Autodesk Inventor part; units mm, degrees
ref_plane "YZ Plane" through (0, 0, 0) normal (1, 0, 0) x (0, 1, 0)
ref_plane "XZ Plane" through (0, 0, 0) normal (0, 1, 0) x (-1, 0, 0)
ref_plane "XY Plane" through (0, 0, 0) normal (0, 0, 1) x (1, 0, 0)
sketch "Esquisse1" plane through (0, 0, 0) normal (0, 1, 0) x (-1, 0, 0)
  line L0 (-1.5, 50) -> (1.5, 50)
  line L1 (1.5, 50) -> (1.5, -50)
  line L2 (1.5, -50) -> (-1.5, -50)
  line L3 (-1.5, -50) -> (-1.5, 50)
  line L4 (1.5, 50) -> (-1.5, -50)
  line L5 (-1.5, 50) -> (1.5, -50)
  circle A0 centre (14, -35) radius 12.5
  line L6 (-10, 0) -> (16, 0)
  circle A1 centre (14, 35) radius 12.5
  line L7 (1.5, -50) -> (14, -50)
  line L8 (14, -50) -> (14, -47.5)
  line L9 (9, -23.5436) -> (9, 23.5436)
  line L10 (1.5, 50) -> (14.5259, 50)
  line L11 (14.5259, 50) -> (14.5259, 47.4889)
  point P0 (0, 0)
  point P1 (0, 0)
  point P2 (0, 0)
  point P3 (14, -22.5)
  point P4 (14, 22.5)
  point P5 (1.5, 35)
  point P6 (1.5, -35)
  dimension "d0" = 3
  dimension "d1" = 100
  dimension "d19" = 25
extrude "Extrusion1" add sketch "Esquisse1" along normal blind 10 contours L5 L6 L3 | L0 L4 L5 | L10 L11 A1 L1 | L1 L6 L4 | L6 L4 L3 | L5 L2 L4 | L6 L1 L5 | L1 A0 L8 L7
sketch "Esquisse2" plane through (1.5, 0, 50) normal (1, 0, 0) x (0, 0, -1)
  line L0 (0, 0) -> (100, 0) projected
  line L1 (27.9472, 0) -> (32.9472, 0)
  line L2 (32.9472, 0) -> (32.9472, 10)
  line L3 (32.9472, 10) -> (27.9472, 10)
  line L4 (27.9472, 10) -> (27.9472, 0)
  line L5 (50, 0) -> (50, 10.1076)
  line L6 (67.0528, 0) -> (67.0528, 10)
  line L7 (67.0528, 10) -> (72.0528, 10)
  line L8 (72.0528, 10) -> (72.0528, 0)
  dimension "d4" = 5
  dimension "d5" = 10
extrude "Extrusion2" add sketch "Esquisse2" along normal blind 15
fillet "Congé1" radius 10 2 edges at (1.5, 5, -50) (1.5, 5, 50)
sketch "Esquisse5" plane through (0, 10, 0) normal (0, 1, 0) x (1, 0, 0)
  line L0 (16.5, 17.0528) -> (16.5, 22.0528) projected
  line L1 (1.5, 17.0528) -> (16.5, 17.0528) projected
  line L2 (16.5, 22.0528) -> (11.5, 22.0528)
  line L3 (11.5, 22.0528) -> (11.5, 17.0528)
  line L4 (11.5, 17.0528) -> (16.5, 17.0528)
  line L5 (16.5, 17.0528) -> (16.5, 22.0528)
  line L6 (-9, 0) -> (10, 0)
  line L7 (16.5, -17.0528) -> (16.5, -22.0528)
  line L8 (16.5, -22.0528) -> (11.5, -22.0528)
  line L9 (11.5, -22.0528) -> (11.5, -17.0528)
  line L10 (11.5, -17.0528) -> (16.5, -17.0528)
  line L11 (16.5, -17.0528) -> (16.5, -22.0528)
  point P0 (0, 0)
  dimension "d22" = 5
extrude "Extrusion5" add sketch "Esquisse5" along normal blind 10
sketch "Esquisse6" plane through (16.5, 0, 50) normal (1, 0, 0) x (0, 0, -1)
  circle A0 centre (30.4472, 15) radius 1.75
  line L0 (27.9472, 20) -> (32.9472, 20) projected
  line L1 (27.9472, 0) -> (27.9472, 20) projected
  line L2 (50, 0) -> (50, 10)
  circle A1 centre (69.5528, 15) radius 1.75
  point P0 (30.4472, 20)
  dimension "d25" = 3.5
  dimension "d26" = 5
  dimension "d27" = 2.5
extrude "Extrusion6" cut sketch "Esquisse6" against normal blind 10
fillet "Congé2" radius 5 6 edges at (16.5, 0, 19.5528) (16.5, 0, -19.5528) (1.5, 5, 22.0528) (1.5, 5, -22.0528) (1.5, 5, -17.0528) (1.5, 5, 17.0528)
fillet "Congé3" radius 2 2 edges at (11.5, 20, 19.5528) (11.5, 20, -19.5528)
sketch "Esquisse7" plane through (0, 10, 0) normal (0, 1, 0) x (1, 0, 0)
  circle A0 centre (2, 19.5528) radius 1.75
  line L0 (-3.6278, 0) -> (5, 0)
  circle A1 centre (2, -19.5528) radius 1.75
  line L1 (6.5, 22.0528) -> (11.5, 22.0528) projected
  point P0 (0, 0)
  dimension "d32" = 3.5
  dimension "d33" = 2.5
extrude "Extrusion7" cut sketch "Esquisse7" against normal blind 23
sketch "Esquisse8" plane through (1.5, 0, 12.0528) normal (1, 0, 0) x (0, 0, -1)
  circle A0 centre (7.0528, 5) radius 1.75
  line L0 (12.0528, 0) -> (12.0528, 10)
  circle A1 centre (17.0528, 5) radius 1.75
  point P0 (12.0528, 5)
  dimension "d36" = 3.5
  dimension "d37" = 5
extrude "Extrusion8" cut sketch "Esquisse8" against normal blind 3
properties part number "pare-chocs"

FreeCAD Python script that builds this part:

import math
import FreeCAD as App
import Part
import Sketcher

V = App.Vector


def edges_at(feature, points):
    """Names of the edges that pass closest to the given points."""
    edges = feature.Shape.Edges
    near = lambda p: min(range(len(edges)), key=lambda i: edges[i].distToShape(Part.Vertex(*p))[0])
    return sorted({f"Edge{near(p) + 1}" for p in points})

doc = App.newDocument("Part")
body = doc.addObject("PartDesign::Body", "Body")

# Sketch on XZ plane
sketch1 = body.newObject("Sketcher::SketchObject", "Sketch")
sketch1.AttachmentSupport = (doc.getObject("XZ_Plane"), [""])
sketch1.MapMode = "FlatFace"
sketch1.addGeometry(Part.LineSegment(V(1.5, 50, 0), V(1.5, -50, 0)), False)
sketch1.addGeometry(Part.LineSegment(V(1.5, -50, 0), V(-14, -50, 0)), False)
sketch1.addGeometry(Part.LineSegment(V(-14, -50, 0), V(-14, -47.5, 0)), False)
sketch1.addGeometry(Part.ArcOfCircle(Part.Circle(V(-14, -35, 0), V(0, 0, 1), 12.5), math.radians(-90), math.radians(0)), False)
sketch1.addGeometry(Part.LineSegment(V(-1.5, -35, 0), V(-1.5, 35, 0)), False)
sketch1.addGeometry(Part.ArcOfCircle(Part.Circle(V(-14, 35, 0), V(0, 0, 1), 12.5), math.radians(0), math.radians(92.411266)), False)
sketch1.addGeometry(Part.LineSegment(V(-14.5259, 47.4889, 0), V(-14.5259, 50, 0)), False)
sketch1.addGeometry(Part.LineSegment(V(-14.5259, 50, 0), V(1.5, 50, 0)), False)
sketch1.addConstraint(Sketcher.Constraint("Coincident", 0, 2, 1, 1))
sketch1.addConstraint(Sketcher.Constraint("Coincident", 1, 2, 2, 1))
sketch1.addConstraint(Sketcher.Constraint("Coincident", 2, 2, 3, 1))
sketch1.addConstraint(Sketcher.Constraint("Tangent", 3, 2, 4, 1))
sketch1.addConstraint(Sketcher.Constraint("Tangent", 4, 2, 5, 1))
sketch1.addConstraint(Sketcher.Constraint("Coincident", 5, 2, 6, 1))
sketch1.addConstraint(Sketcher.Constraint("Coincident", 6, 2, 7, 1))
sketch1.addConstraint(Sketcher.Constraint("Coincident", 7, 2, 0, 1))
sketch1.addConstraint(Sketcher.Constraint("Vertical", 0))
sketch1.addConstraint(Sketcher.Constraint("Horizontal", 1))
sketch1.addConstraint(Sketcher.Constraint("Vertical", 2))
sketch1.addConstraint(Sketcher.Constraint("Vertical", 4))
sketch1.addConstraint(Sketcher.Constraint("Vertical", 6))
sketch1.addConstraint(Sketcher.Constraint("Horizontal", 7))
sketch1.addConstraint(Sketcher.Constraint("Equal", 3, 5))
sketch1.addConstraint(Sketcher.Constraint("Vertical", 5, 3, 1, 2))
sketch1.addConstraint(Sketcher.Constraint("Radius", 3, 12.5))
sketch1.addConstraint(Sketcher.Constraint("DistanceY", 0, 2, 0, 1, 100.0))
sketch1.addConstraint(Sketcher.Constraint("DistanceX", 3, 2, 0, 2, 3.0))
sketch1.addConstraint(Sketcher.Constraint("DistanceY", 4, 1, 4, 2, 70.0))
sketch1.addConstraint(Sketcher.Constraint("DistanceY", 2, 1, 2, 2, 2.5))
sketch1.addConstraint(Sketcher.Constraint("DistanceX", 3, 3, -1, 1, 14.0))
sketch1.addConstraint(Sketcher.Constraint("DistanceY", 3, 3, -1, 1, 35.0))
sketch1.addConstraint(Sketcher.Constraint("DistanceX", 7, 1, 7, 2, 16.026))
pad1 = body.newObject("PartDesign::Pad", "Pad")
pad1.Profile = sketch1
pad1.Length = 10
pad1.Reversed = True

# Sketch on YZ plane
sketch2 = body.newObject("Sketcher::SketchObject", "Sketch001")
sketch2.AttachmentSupport = (doc.getObject("YZ_Plane"), [""])
sketch2.MapMode = "FlatFace"
sketch2.AttachmentOffset = App.Placement(V(0, 0, 1.5), App.Rotation())
sketch2.addGeometry(Part.LineSegment(V(10, 22.0528, 0), V(0, 22.0528, 0)), False)
sketch2.addGeometry(Part.LineSegment(V(0, 22.0528, 0), V(0, 17.0528, 0)), False)
sketch2.addGeometry(Part.LineSegment(V(0, 17.0528, 0), V(10, 17.0528, 0)), False)
sketch2.addGeometry(Part.LineSegment(V(10, 17.0528, 0), V(10, 22.0528, 0)), False)
sketch2.addGeometry(Part.LineSegment(V(10, -17.0528, 0), V(0, -17.0528, 0)), False)
sketch2.addGeometry(Part.LineSegment(V(0, -17.0528, 0), V(0, -22.0528, 0)), False)
sketch2.addGeometry(Part.LineSegment(V(0, -22.0528, 0), V(10, -22.0528, 0)), False)
sketch2.addGeometry(Part.LineSegment(V(10, -22.0528, 0), V(10, -17.0528, 0)), False)
sketch2.addConstraint(Sketcher.Constraint("Coincident", 0, 2, 1, 1))
sketch2.addConstraint(Sketcher.Constraint("Coincident", 1, 2, 2, 1))
sketch2.addConstraint(Sketcher.Constraint("Coincident", 2, 2, 3, 1))
sketch2.addConstraint(Sketcher.Constraint("Coincident", 3, 2, 0, 1))
sketch2.addConstraint(Sketcher.Constraint("Coincident", 4, 2, 5, 1))
sketch2.addConstraint(Sketcher.Constraint("Coincident", 5, 2, 6, 1))
sketch2.addConstraint(Sketcher.Constraint("Coincident", 6, 2, 7, 1))
sketch2.addConstraint(Sketcher.Constraint("Coincident", 7, 2, 4, 1))
sketch2.addConstraint(Sketcher.Constraint("Horizontal", 0))
sketch2.addConstraint(Sketcher.Constraint("Vertical", 1))
sketch2.addConstraint(Sketcher.Constraint("Horizontal", 2))
sketch2.addConstraint(Sketcher.Constraint("Vertical", 3))
sketch2.addConstraint(Sketcher.Constraint("Horizontal", 4))
sketch2.addConstraint(Sketcher.Constraint("Vertical", 5))
sketch2.addConstraint(Sketcher.Constraint("Horizontal", 6))
sketch2.addConstraint(Sketcher.Constraint("Vertical", 7))
sketch2.addConstraint(Sketcher.Constraint("Symmetric", 1, 2, 4, 2, -1, 1))
sketch2.addConstraint(Sketcher.Constraint("Symmetric", 0, 2, 5, 2, -1))
sketch2.addConstraint(Sketcher.Constraint("Vertical", 3, 2, 6, 2))
sketch2.addConstraint(Sketcher.Constraint("DistanceX", 0, 2, 0, 1, 10.0))
sketch2.addConstraint(Sketcher.Constraint("DistanceY", 1, 2, 1, 1, 5.0))
sketch2.addConstraint(Sketcher.Constraint("DistanceY", -1, 1, 0, 2, 22.0528))
pad2 = body.newObject("PartDesign::Pad", "Pad001")
pad2.Profile = sketch2
pad2.Length = 15
doc.recompute()

fillet = body.newObject("PartDesign::Fillet", "Fillet")
fillet.Base = (pad2, edges_at(pad2, [(1.5, 5, -50), (1.5, 5, 50)]))
fillet.Radius = 10

# Sketch on XZ plane
sketch3 = body.newObject("Sketcher::SketchObject", "Sketch002")
sketch3.AttachmentSupport = (doc.getObject("XZ_Plane"), [""])
sketch3.MapMode = "FlatFace"
sketch3.AttachmentOffset = App.Placement(V(0, 0, -10), App.Rotation())
sketch3.addGeometry(Part.LineSegment(V(11.5, -17.0528, 0), V(16.5, -17.0528, 0)), False)
sketch3.addGeometry(Part.LineSegment(V(16.5, -17.0528, 0), V(16.5, -22.0528, 0)), False)
sketch3.addGeometry(Part.LineSegment(V(16.5, -22.0528, 0), V(11.5, -22.0528, 0)), False)
sketch3.addGeometry(Part.LineSegment(V(11.5, -22.0528, 0), V(11.5, -17.0528, 0)), False)
sketch3.addGeometry(Part.LineSegment(V(16.5, 22.0528, 0), V(16.5, 17.0528, 0)), False)
sketch3.addGeometry(Part.LineSegment(V(16.5, 17.0528, 0), V(11.5, 17.0528, 0)), False)
sketch3.addGeometry(Part.LineSegment(V(11.5, 17.0528, 0), V(11.5, 22.0528, 0)), False)
sketch3.addGeometry(Part.LineSegment(V(11.5, 22.0528, 0), V(16.5, 22.0528, 0)), False)
sketch3.addConstraint(Sketcher.Constraint("Coincident", 0, 2, 1, 1))
sketch3.addConstraint(Sketcher.Constraint("Coincident", 1, 2, 2, 1))
sketch3.addConstraint(Sketcher.Constraint("Coincident", 2, 2, 3, 1))
sketch3.addConstraint(Sketcher.Constraint("Coincident", 3, 2, 0, 1))
sketch3.addConstraint(Sketcher.Constraint("Coincident", 4, 2, 5, 1))
sketch3.addConstraint(Sketcher.Constraint("Coincident", 5, 2, 6, 1))
sketch3.addConstraint(Sketcher.Constraint("Coincident", 6, 2, 7, 1))
sketch3.addConstraint(Sketcher.Constraint("Coincident", 7, 2, 4, 1))
sketch3.addConstraint(Sketcher.Constraint("Horizontal", 0))
sketch3.addConstraint(Sketcher.Constraint("Vertical", 1))
sketch3.addConstraint(Sketcher.Constraint("Horizontal", 2))
sketch3.addConstraint(Sketcher.Constraint("Vertical", 3))
sketch3.addConstraint(Sketcher.Constraint("Vertical", 4))
sketch3.addConstraint(Sketcher.Constraint("Horizontal", 5))
sketch3.addConstraint(Sketcher.Constraint("Vertical", 6))
sketch3.addConstraint(Sketcher.Constraint("Horizontal", 7))
sketch3.addConstraint(Sketcher.Constraint("Symmetric", 0, 2, 4, 2, -1))
sketch3.addConstraint(Sketcher.Constraint("Symmetric", 2, 2, 6, 2, -1))
sketch3.addConstraint(Sketcher.Constraint("Equal", 7, 1))
sketch3.addConstraint(Sketcher.Constraint("DistanceX", 0, 1, 0, 2, 5.0))
sketch3.addConstraint(Sketcher.Constraint("DistanceX", -1, 1, 0, 2, 16.5))
sketch3.addConstraint(Sketcher.Constraint("DistanceY", 0, 2, -1, 1, 17.0528))
pad3 = body.newObject("PartDesign::Pad", "Pad002")
pad3.Profile = sketch3
pad3.Length = 10
pad3.Reversed = True

# Sketch on YZ plane
sketch4 = body.newObject("Sketcher::SketchObject", "Sketch003")
sketch4.AttachmentSupport = (doc.getObject("YZ_Plane"), [""])
sketch4.MapMode = "FlatFace"
sketch4.AttachmentOffset = App.Placement(V(0, 0, 16.5), App.Rotation())
sketch4.addGeometry(Part.Circle(V(15, 19.5528, 0), V(0, 0, 1), 1.75), False)
sketch4.addGeometry(Part.Circle(V(15, -19.5528, 0), V(0, 0, 1), 1.75), False)
sketch4.addConstraint(Sketcher.Constraint("Equal", 0, 1))
sketch4.addConstraint(Sketcher.Constraint("Symmetric", 0, 3, 1, 3, -1))
sketch4.addConstraint(Sketcher.Constraint("Diameter", 0, 3.5))
sketch4.addConstraint(Sketcher.Constraint("DistanceX", -1, 1, 0, 3, 15.0))
sketch4.addConstraint(Sketcher.Constraint("DistanceY", -1, 1, 0, 3, 19.5528))
pocket1 = body.newObject("PartDesign::Pocket", "Pocket")
pocket1.Profile = sketch4
pocket1.Length = 10
doc.recompute()

fillet2 = body.newObject("PartDesign::Fillet", "Fillet001")
fillet2.Base = (pocket1, edges_at(pocket1, [
    (16.5, 0, 19.553),
    (16.5, 0, -19.553),
    (1.5, 5, 22.053),
    (1.5, 5, -22.053),
    (1.5, 5, -17.053),
    (1.5, 5, 17.053),
]))
fillet2.Radius = 5
doc.recompute()

fillet3 = body.newObject("PartDesign::Fillet", "Fillet002")
fillet3.Base = (fillet2, edges_at(fillet2, [(11.5, 20, 19.553), (11.5, 20, -19.553)]))
fillet3.Radius = 2

# Sketch on XZ plane
sketch5 = body.newObject("Sketcher::SketchObject", "Sketch004")
sketch5.AttachmentSupport = (doc.getObject("XZ_Plane"), [""])
sketch5.MapMode = "FlatFace"
sketch5.AttachmentOffset = App.Placement(V(0, 0, -10), App.Rotation())
sketch5.addGeometry(Part.Circle(V(2, -19.5528, 0), V(0, 0, 1), 1.75), False)
sketch5.addGeometry(Part.Circle(V(2, 19.5528, 0), V(0, 0, 1), 1.75), False)
sketch5.addConstraint(Sketcher.Constraint("Equal", 0, 1))
sketch5.addConstraint(Sketcher.Constraint("Symmetric", 0, 3, 1, 3, -1))
sketch5.addConstraint(Sketcher.Constraint("Diameter", 0, 3.5))
sketch5.addConstraint(Sketcher.Constraint("DistanceX", -1, 1, 0, 3, 2.0))
sketch5.addConstraint(Sketcher.Constraint("DistanceY", 0, 3, -1, 1, 19.5528))
pocket2 = body.newObject("PartDesign::Pocket", "Pocket001")
pocket2.Profile = sketch5
pocket2.Length = 23
pocket2.Reversed = True

# Sketch on YZ plane
sketch6 = body.newObject("Sketcher::SketchObject", "Sketch005")
sketch6.AttachmentSupport = (doc.getObject("YZ_Plane"), [""])
sketch6.MapMode = "FlatFace"
sketch6.AttachmentOffset = App.Placement(V(0, 0, 1.5), App.Rotation())
sketch6.addGeometry(Part.Circle(V(5, 5, 0), V(0, 0, 1), 1.75), False)
sketch6.addGeometry(Part.Circle(V(5, -5, 0), V(0, 0, 1), 1.75), False)
sketch6.addConstraint(Sketcher.Constraint("Equal", 0, 1))
sketch6.addConstraint(Sketcher.Constraint("Symmetric", 0, 3, 1, 3, -1))
sketch6.addConstraint(Sketcher.Constraint("Diameter", 0, 3.5))
sketch6.addConstraint(Sketcher.Constraint("DistanceX", -1, 1, 0, 3, 5.0))
sketch6.addConstraint(Sketcher.Constraint("DistanceY", -1, 1, 0, 3, 5.0))
pocket3 = body.newObject("PartDesign::Pocket", "Pocket002")
pocket3.Profile = sketch6
pocket3.Length = 3

doc.recompute()
